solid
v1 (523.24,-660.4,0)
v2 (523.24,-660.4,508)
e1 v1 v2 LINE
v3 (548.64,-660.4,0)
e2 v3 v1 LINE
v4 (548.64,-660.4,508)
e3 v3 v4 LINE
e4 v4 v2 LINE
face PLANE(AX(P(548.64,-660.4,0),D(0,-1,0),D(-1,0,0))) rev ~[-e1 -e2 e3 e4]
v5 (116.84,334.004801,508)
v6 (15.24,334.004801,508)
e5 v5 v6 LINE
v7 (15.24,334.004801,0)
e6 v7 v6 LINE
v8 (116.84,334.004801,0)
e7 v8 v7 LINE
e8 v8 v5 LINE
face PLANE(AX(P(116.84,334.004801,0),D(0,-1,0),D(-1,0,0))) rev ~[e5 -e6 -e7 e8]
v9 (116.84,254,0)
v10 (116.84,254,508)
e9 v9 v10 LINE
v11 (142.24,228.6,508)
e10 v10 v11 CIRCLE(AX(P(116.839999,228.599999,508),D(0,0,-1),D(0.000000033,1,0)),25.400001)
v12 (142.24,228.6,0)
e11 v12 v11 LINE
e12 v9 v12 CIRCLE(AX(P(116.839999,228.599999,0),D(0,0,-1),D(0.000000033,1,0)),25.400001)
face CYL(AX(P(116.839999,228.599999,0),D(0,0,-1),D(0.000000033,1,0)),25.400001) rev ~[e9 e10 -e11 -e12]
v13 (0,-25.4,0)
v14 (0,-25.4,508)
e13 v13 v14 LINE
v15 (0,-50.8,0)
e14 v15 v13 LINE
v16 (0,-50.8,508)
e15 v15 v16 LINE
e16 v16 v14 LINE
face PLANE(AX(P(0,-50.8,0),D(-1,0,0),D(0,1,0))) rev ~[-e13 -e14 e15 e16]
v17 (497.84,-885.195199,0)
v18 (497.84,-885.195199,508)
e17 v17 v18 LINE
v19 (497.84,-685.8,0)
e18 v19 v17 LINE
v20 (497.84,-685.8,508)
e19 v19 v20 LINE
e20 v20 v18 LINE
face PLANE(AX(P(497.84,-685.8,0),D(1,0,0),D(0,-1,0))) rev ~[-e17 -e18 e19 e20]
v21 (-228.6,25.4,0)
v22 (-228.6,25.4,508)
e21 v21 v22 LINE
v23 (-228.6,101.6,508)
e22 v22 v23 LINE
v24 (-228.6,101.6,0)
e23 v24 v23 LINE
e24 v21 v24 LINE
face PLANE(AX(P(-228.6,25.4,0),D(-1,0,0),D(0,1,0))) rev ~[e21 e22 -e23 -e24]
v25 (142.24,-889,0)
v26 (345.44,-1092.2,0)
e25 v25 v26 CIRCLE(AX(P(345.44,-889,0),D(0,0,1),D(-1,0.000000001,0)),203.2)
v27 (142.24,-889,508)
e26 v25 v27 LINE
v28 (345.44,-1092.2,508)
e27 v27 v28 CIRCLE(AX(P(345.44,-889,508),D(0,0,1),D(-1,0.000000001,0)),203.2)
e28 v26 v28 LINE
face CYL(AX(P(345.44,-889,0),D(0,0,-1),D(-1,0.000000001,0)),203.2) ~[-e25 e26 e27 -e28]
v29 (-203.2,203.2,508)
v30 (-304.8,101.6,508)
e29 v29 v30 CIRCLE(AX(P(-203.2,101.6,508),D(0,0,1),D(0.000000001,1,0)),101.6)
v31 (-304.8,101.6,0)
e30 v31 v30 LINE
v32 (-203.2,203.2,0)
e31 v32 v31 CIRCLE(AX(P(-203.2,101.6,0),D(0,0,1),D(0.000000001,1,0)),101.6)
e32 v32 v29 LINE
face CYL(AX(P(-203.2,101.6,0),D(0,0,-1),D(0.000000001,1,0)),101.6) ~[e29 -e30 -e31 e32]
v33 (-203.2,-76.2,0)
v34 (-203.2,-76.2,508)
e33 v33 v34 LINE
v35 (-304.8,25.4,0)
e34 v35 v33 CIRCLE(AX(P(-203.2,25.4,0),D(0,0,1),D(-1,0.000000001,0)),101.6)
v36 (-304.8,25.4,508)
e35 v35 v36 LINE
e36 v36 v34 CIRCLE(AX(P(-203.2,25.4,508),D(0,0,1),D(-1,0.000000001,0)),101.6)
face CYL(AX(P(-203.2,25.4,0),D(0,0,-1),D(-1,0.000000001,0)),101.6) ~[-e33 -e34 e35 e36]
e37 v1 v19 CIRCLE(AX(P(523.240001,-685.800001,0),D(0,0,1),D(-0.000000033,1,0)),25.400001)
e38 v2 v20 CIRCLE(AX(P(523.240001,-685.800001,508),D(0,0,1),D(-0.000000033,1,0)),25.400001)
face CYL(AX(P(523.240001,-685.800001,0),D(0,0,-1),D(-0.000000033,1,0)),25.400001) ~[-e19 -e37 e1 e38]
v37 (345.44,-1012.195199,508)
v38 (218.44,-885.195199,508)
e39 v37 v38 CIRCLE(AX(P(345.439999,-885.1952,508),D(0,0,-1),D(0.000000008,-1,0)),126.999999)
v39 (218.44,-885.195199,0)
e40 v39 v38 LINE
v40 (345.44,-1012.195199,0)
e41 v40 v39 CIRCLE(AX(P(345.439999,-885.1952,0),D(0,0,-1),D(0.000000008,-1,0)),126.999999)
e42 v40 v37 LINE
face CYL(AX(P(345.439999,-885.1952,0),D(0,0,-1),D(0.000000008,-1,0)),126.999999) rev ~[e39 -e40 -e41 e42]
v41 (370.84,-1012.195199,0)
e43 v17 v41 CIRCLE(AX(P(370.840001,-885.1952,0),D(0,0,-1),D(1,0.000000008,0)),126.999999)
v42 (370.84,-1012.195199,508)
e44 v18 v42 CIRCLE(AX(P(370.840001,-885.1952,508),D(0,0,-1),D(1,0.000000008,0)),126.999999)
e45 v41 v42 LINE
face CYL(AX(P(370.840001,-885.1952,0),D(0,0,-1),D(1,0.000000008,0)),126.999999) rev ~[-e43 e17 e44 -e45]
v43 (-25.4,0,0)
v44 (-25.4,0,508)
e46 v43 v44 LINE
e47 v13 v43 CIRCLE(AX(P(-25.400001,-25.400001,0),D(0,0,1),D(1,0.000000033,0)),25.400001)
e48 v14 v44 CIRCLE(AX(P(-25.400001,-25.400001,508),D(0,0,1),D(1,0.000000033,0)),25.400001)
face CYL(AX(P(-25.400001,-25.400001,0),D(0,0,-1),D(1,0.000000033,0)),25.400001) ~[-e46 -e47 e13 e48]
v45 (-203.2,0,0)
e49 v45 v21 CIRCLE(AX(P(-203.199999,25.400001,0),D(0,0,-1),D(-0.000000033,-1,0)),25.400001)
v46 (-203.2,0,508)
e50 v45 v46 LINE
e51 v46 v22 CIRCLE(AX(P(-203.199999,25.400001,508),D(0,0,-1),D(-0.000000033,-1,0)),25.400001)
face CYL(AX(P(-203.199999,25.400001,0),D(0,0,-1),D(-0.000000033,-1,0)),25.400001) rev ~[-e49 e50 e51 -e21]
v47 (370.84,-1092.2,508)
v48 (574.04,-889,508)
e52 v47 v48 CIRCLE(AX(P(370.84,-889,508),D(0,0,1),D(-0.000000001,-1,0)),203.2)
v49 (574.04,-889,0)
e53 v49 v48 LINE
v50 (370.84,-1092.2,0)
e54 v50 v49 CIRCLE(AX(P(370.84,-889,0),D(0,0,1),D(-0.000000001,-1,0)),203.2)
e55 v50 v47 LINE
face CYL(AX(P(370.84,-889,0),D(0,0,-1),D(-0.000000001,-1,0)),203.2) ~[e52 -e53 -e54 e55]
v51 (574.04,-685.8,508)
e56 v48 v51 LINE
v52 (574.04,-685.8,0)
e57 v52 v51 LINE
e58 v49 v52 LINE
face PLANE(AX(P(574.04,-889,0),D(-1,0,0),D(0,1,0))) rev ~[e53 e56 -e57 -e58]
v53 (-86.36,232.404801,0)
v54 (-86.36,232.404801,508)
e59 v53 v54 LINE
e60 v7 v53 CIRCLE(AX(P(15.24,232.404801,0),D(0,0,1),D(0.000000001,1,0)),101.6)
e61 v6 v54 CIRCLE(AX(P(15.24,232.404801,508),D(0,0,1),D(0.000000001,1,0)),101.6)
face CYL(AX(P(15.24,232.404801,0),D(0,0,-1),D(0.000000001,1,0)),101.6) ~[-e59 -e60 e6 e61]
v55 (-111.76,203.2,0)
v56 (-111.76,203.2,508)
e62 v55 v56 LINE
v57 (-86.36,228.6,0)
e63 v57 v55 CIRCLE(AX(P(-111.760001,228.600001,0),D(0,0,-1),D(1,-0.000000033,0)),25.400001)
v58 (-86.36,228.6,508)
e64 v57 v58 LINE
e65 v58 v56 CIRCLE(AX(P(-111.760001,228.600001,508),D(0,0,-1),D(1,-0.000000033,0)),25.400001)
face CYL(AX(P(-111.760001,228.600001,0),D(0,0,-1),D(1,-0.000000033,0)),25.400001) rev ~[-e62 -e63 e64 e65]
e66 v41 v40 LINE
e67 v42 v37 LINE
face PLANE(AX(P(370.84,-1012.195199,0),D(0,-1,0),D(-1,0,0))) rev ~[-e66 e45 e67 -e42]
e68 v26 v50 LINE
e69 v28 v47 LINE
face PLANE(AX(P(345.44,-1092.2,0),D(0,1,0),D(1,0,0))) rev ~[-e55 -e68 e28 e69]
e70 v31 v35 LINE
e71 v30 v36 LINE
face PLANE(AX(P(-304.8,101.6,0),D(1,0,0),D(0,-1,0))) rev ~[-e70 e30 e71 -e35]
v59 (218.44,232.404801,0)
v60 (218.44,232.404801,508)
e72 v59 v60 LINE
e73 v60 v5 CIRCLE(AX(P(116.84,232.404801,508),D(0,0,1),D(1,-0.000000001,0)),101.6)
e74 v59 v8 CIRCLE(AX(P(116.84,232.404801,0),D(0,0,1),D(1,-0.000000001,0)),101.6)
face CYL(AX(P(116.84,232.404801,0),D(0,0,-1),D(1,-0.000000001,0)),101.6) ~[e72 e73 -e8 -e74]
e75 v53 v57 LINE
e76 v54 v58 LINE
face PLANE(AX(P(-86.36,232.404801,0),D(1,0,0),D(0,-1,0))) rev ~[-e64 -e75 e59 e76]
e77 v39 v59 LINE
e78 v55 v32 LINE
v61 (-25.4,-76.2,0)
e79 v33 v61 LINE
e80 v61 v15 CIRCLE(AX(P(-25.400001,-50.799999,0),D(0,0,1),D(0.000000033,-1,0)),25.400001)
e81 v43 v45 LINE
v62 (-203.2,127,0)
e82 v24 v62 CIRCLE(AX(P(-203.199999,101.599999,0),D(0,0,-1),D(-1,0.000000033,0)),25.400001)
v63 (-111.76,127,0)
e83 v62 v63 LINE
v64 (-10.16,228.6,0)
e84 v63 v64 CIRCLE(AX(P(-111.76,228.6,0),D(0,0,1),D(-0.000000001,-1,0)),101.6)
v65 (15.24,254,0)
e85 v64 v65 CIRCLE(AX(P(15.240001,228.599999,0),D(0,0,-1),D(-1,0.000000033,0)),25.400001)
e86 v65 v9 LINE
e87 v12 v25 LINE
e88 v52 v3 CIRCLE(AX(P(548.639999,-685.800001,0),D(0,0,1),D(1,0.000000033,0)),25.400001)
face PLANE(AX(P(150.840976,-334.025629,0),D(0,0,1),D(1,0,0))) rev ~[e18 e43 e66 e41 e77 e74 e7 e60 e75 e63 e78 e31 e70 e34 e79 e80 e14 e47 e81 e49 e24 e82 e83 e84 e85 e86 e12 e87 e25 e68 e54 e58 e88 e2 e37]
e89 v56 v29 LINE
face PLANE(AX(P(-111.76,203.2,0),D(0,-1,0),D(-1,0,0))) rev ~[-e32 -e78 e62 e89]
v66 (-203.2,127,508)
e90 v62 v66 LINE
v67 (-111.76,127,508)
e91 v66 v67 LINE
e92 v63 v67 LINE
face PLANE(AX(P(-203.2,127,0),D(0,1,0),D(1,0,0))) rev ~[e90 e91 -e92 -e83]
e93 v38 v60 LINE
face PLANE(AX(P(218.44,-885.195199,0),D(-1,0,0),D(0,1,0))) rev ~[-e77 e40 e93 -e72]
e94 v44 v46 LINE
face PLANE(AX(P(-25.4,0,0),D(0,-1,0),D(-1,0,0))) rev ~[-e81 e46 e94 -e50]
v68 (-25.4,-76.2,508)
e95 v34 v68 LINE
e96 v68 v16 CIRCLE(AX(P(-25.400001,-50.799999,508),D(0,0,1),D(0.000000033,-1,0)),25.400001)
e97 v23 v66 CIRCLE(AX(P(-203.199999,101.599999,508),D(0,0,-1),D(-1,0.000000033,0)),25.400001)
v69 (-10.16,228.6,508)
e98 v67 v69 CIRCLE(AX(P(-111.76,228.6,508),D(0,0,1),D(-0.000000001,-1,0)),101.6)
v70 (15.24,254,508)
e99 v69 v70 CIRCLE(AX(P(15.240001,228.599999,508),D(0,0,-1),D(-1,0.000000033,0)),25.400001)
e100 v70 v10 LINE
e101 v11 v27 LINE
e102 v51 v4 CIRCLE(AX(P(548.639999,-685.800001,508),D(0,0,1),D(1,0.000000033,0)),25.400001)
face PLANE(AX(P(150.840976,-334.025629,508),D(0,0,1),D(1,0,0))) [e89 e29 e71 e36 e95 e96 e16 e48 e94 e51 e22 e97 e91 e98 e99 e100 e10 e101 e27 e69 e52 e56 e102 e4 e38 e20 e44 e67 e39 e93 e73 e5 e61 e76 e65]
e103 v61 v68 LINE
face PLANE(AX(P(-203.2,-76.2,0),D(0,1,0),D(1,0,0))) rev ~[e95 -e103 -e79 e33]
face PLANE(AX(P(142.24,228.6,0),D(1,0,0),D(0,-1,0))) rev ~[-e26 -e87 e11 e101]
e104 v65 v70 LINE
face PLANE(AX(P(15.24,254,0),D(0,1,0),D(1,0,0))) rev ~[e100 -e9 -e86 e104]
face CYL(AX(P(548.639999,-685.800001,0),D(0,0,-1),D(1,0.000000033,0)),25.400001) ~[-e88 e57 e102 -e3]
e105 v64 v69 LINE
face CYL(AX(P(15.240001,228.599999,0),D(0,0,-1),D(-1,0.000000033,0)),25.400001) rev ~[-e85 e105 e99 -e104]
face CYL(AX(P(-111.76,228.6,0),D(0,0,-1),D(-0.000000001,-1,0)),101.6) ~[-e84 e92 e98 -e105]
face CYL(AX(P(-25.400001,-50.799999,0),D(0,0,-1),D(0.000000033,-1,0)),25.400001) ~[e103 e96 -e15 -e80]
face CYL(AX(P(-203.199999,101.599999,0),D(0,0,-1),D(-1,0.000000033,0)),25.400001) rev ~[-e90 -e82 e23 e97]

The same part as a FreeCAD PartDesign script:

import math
import FreeCAD as App
import Part
import Sketcher

V = App.Vector
Q = App.Units.Quantity

doc = App.newDocument("Part")
body = doc.addObject("PartDesign::Body", "Body")

# Sketch on XY plane
sketch1 = body.newObject("Sketcher::SketchObject", "Sketch")
sketch1.AttachmentSupport = (doc.getObject("XY_Plane"), [""])
sketch1.MapMode = "FlatFace"
sketch1.addGeometry(Part.ArcOfCircle(Part.Circle(V(-25.400001, -25.400001, 0), V(0, 0, 1), 25.400001), math.radians(0.000002), math.radians(89.999998)), False)
sketch1.addGeometry(Part.LineSegment(V(-25.4, 0, 0), V(-203.2, 0, 0)), False)
sketch1.addGeometry(Part.ArcOfCircle(Part.Circle(V(-203.199999, 25.400001, 0), V(0, 0, 1), 25.400001), math.radians(-179.999998), math.radians(-90.000002)), False)
sketch1.addGeometry(Part.LineSegment(V(-228.6, 25.4, 0), V(-228.6, 101.6, 0)), False)
sketch1.addGeometry(Part.ArcOfCircle(Part.Circle(V(-203.199999, 101.599999, 0), V(0, 0, 1), 25.400001), math.radians(90.000002), math.radians(179.999998)), False)
sketch1.addGeometry(Part.LineSegment(V(-203.2, 127, 0), V(-111.76, 127, 0)), False)
sketch1.addGeometry(Part.ArcOfCircle(Part.Circle(V(-111.76, 228.6, 0), V(0, 0, 1), 101.6), math.radians(-90), math.radians(0)), False)
sketch1.addGeometry(Part.ArcOfCircle(Part.Circle(V(15.240001, 228.599999, 0), V(0, 0, 1), 25.400001), math.radians(90.000002), math.radians(179.999998)), False)
sketch1.addGeometry(Part.LineSegment(V(15.24, 254, 0), V(116.84, 254, 0)), False)
sketch1.addGeometry(Part.ArcOfCircle(Part.Circle(V(116.839999, 228.599999, 0), V(0, 0, 1), 25.400001), math.radians(0.000002), math.radians(89.999998)), False)
sketch1.addGeometry(Part.LineSegment(V(142.24, 228.6, 0), V(142.24, -889, 0)), False)
sketch1.addGeometry(Part.ArcOfCircle(Part.Circle(V(345.44, -889, 0), V(0, 0, 1), 203.2), math.radians(180), math.radians(270)), False)
sketch1.addGeometry(Part.LineSegment(V(345.44, -1092.2, 0), V(370.84, -1092.2, 0)), False)
sketch1.addGeometry(Part.ArcOfCircle(Part.Circle(V(370.84, -889, 0), V(0, 0, 1), 203.2), math.radians(-90), math.radians(0)), False)
sketch1.addGeometry(Part.LineSegment(V(574.04, -889, 0), V(574.04, -685.8, 0)), False)
sketch1.addGeometry(Part.ArcOfCircle(Part.Circle(V(548.639999, -685.800001, 0), V(0, 0, 1), 25.400001), math.radians(0.000002), math.radians(89.999998)), False)
sketch1.addGeometry(Part.LineSegment(V(548.64, -660.4, 0), V(523.24, -660.4, 0)), False)
sketch1.addGeometry(Part.ArcOfCircle(Part.Circle(V(523.240001, -685.800001, 0), V(0, 0, 1), 25.400001), math.radians(90.000002), math.radians(179.999998)), False)
sketch1.addGeometry(Part.LineSegment(V(497.84, -685.8, 0), V(497.84, -885.195199, 0)), False)
sketch1.addGeometry(Part.ArcOfCircle(Part.Circle(V(370.840001, -885.1952, 0), V(0, 0, 1), 126.999999), math.radians(-90), math.radians(0)), False)
sketch1.addGeometry(Part.LineSegment(V(370.84, -1012.195199, 0), V(345.44, -1012.195199, 0)), False)
sketch1.addGeometry(Part.ArcOfCircle(Part.Circle(V(345.439999, -885.1952, 0), V(0, 0, 1), 126.999999), math.radians(180), math.radians(270)), False)
sketch1.addGeometry(Part.LineSegment(V(218.44, -885.195199, 0), V(218.44, 232.404801, 0)), False)
sketch1.addGeometry(Part.ArcOfCircle(Part.Circle(V(116.84, 232.404801, 0), V(0, 0, 1), 101.6), math.radians(0), math.radians(90)), False)
sketch1.addGeometry(Part.LineSegment(V(116.84, 334.004801, 0), V(15.24, 334.004801, 0)), False)
sketch1.addGeometry(Part.ArcOfCircle(Part.Circle(V(15.24, 232.404801, 0), V(0, 0, 1), 101.6), math.radians(90), math.radians(180)), False)
sketch1.addGeometry(Part.LineSegment(V(-86.36, 232.404801, 0), V(-86.36, 228.6, 0)), False)
sketch1.addGeometry(Part.ArcOfCircle(Part.Circle(V(-111.760001, 228.600001, 0), V(0, 0, 1), 25.400001), math.radians(-89.999998), math.radians(-0.000002)), False)
sketch1.addGeometry(Part.LineSegment(V(-111.76, 203.2, 0), V(-203.2, 203.2, 0)), False)
sketch1.addGeometry(Part.ArcOfCircle(Part.Circle(V(-203.2, 101.6, 0), V(0, 0, 1), 101.6), math.radians(90), math.radians(180)), False)
sketch1.addGeometry(Part.LineSegment(V(-304.8, 101.6, 0), V(-304.8, 25.4, 0)), False)
sketch1.addGeometry(Part.ArcOfCircle(Part.Circle(V(-203.2, 25.4, 0), V(0, 0, 1), 101.6), math.radians(180), math.radians(270)), False)
sketch1.addGeometry(Part.LineSegment(V(-203.2, -76.2, 0), V(-25.4, -76.2, 0)), False)
sketch1.addGeometry(Part.ArcOfCircle(Part.Circle(V(-25.400001, -50.799999, 0), V(0, 0, 1), 25.400001), math.radians(-89.999998), math.radians(-0.000002)), False)
sketch1.addGeometry(Part.LineSegment(V(0, -50.8, 0), V(0, -25.4, 0)), False)
sketch1.addConstraint(Sketcher.Constraint("Tangent", 0, 2, 1, 1))
sketch1.addConstraint(Sketcher.Constraint("Tangent", 1, 2, 2, 2))
sketch1.addConstraint(Sketcher.Constraint("Tangent", 2, 1, 3, 1))
sketch1.addConstraint(Sketcher.Constraint("Tangent", 3, 2, 4, 2))
sketch1.addConstraint(Sketcher.Constraint("Tangent", 4, 1, 5, 1))
sketch1.addConstraint(Sketcher.Constraint("Tangent", 5, 2, 6, 1))
sketch1.addConstraint(Sketcher.Constraint("Tangent", 6, 2, 7, 2))
sketch1.addConstraint(Sketcher.Constraint("Tangent", 7, 1, 8, 1))
sketch1.addConstraint(Sketcher.Constraint("Tangent", 8, 2, 9, 2))
sketch1.addConstraint(Sketcher.Constraint("Tangent", 9, 1, 10, 1))
sketch1.addConstraint(Sketcher.Constraint("Tangent", 10, 2, 11, 1))
sketch1.addConstraint(Sketcher.Constraint("Tangent", 11, 2, 12, 1))
sketch1.addConstraint(Sketcher.Constraint("Tangent", 12, 2, 13, 1))
sketch1.addConstraint(Sketcher.Constraint("Tangent", 13, 2, 14, 1))
sketch1.addConstraint(Sketcher.Constraint("Tangent", 14, 2, 15, 1))
sketch1.addConstraint(Sketcher.Constraint("Tangent", 15, 2, 16, 1))
sketch1.addConstraint(Sketcher.Constraint("Tangent", 16, 2, 17, 1))
sketch1.addConstraint(Sketcher.Constraint("Tangent", 17, 2, 18, 1))
sketch1.addConstraint(Sketcher.Constraint("Tangent", 18, 2, 19, 2))
sketch1.addConstraint(Sketcher.Constraint("Tangent", 19, 1, 20, 1))
sketch1.addConstraint(Sketcher.Constraint("Tangent", 20, 2, 21, 2))
sketch1.addConstraint(Sketcher.Constraint("Tangent", 21, 1, 22, 1))
sketch1.addConstraint(Sketcher.Constraint("Tangent", 22, 2, 23, 1))
sketch1.addConstraint(Sketcher.Constraint("Tangent", 23, 2, 24, 1))
sketch1.addConstraint(Sketcher.Constraint("Tangent", 24, 2, 25, 1))
sketch1.addConstraint(Sketcher.Constraint("Tangent", 25, 2, 26, 1))
sketch1.addConstraint(Sketcher.Constraint("Tangent", 26, 2, 27, 2))
sketch1.addConstraint(Sketcher.Constraint("Tangent", 27, 1, 28, 1))
sketch1.addConstraint(Sketcher.Constraint("Tangent", 28, 2, 29, 1))
sketch1.addConstraint(Sketcher.Constraint("Tangent", 29, 2, 30, 1))
sketch1.addConstraint(Sketcher.Constraint("Tangent", 30, 2, 31, 1))
sketch1.addConstraint(Sketcher.Constraint("Tangent", 31, 2, 32, 1))
sketch1.addConstraint(Sketcher.Constraint("Tangent", 32, 2, 33, 1))
sketch1.addConstraint(Sketcher.Constraint("Tangent", 33, 2, 34, 1))
sketch1.addConstraint(Sketcher.Constraint("Tangent", 34, 2, 0, 1))
sketch1.addConstraint(Sketcher.Constraint("Horizontal", 1))
sketch1.addConstraint(Sketcher.Constraint("Vertical", 3))
sketch1.addConstraint(Sketcher.Constraint("Horizontal", 5))
sketch1.addConstraint(Sketcher.Constraint("Horizontal", 8))
sketch1.addConstraint(Sketcher.Constraint("Vertical", 10))
sketch1.addConstraint(Sketcher.Constraint("Horizontal", 12))
sketch1.addConstraint(Sketcher.Constraint("Vertical", 14))
sketch1.addConstraint(Sketcher.Constraint("Horizontal", 16))
sketch1.addConstraint(Sketcher.Constraint("Vertical", 18))
sketch1.addConstraint(Sketcher.Constraint("Horizontal", 20))
sketch1.addConstraint(Sketcher.Constraint("Vertical", 22))
sketch1.addConstraint(Sketcher.Constraint("Horizontal", 24))
sketch1.addConstraint(Sketcher.Constraint("Vertical", 26))
sketch1.addConstraint(Sketcher.Constraint("Horizontal", 28))
sketch1.addConstraint(Sketcher.Constraint("Vertical", 30))
sketch1.addConstraint(Sketcher.Constraint("Horizontal", 32))
sketch1.addConstraint(Sketcher.Constraint("Vertical", 34))
sketch1.addConstraint(Sketcher.Constraint("Coincident", 27, 3, 6, 3))
sketch1.addConstraint(Sketcher.Constraint("Coincident", 29, 3, 4, 3))
sketch1.addConstraint(Sketcher.Constraint("Coincident", 31, 3, 2, 3))
sketch1.addConstraint(Sketcher.Constraint("Equal", 0, 2))
sketch1.addConstraint(Sketcher.Constraint("Equal", 2, 4))
sketch1.addConstraint(Sketcher.Constraint("Equal", 4, 7))
sketch1.addConstraint(Sketcher.Constraint("Equal", 7, 9))
sketch1.addConstraint(Sketcher.Constraint("Equal", 11, 13))
sketch1.addConstraint(Sketcher.Constraint("Equal", 9, 15))
sketch1.addConstraint(Sketcher.Constraint("Equal", 15, 17))
sketch1.addConstraint(Sketcher.Constraint("Equal", 19, 21))
sketch1.addConstraint(Sketcher.Constraint("Equal", 6, 23))
sketch1.addConstraint(Sketcher.Constraint("Equal", 23, 25))
sketch1.addConstraint(Sketcher.Constraint("Equal", 17, 27))
sketch1.addConstraint(Sketcher.Constraint("Equal", 27, 33))
sketch1.addConstraint(Sketcher.Constraint("PointOnObject", 0, 2, -1))
sketch1.addConstraint(Sketcher.Constraint("PointOnObject", 33, 2, -2))
sketch1.addConstraint(Sketcher.Constraint("Horizontal", 6, 3, 7, 3))
sketch1.addConstraint(Sketcher.Constraint("Vertical", 13, 3, 19, 3))
sketch1.addConstraint(Sketcher.Constraint("Vertical", 11, 3, 21, 3))
sketch1.addConstraint(Sketcher.Constraint("Vertical", 9, 3, 23, 3))
sketch1.addConstraint(Sketcher.Constraint("Equal", 12, 16))
sketch1.addConstraint(Sketcher.Constraint("Equal", 10, 22))
sketch1.addConstraint(Sketcher.Constraint("Radius", 0, Q("1 in")))
sketch1.addConstraint(Sketcher.Constraint("Radius", 6, Q("4 in")))
sketch1.addConstraint(Sketcher.Constraint("Radius", 11, Q("8 in")))
sketch1.addConstraint(Sketcher.Constraint("DistanceX", 1, 2, 1, 1, Q("7 in")))
sketch1.addConstraint(Sketcher.Constraint("DistanceX", 8, 1, 8, 2, Q("4 in")))
sketch1.addConstraint(Sketcher.Constraint("DistanceY", 3, 1, 3, 2, Q("3 in")))
sketch1.addConstraint(Sketcher.Constraint("DistanceY", 10, 2, 10, 1, Q("44 in")))
sketch1.addConstraint(Sketcher.Constraint("DistanceY", 14, 1, 14, 2, Q("8 in")))
sketch1.addConstraint(Sketcher.Constraint("DistanceX", 5, 1, 5, 2, Q("3.6 in")))
sketch1.addConstraint(Sketcher.Constraint("DistanceY", 18, 2, 18, 1, Q("199.395199 mm")))
pad1 = body.newObject("PartDesign::Pad", "Pad")
pad1.Profile = sketch1
pad1.Length = Q("20 in")

doc.recompute()
